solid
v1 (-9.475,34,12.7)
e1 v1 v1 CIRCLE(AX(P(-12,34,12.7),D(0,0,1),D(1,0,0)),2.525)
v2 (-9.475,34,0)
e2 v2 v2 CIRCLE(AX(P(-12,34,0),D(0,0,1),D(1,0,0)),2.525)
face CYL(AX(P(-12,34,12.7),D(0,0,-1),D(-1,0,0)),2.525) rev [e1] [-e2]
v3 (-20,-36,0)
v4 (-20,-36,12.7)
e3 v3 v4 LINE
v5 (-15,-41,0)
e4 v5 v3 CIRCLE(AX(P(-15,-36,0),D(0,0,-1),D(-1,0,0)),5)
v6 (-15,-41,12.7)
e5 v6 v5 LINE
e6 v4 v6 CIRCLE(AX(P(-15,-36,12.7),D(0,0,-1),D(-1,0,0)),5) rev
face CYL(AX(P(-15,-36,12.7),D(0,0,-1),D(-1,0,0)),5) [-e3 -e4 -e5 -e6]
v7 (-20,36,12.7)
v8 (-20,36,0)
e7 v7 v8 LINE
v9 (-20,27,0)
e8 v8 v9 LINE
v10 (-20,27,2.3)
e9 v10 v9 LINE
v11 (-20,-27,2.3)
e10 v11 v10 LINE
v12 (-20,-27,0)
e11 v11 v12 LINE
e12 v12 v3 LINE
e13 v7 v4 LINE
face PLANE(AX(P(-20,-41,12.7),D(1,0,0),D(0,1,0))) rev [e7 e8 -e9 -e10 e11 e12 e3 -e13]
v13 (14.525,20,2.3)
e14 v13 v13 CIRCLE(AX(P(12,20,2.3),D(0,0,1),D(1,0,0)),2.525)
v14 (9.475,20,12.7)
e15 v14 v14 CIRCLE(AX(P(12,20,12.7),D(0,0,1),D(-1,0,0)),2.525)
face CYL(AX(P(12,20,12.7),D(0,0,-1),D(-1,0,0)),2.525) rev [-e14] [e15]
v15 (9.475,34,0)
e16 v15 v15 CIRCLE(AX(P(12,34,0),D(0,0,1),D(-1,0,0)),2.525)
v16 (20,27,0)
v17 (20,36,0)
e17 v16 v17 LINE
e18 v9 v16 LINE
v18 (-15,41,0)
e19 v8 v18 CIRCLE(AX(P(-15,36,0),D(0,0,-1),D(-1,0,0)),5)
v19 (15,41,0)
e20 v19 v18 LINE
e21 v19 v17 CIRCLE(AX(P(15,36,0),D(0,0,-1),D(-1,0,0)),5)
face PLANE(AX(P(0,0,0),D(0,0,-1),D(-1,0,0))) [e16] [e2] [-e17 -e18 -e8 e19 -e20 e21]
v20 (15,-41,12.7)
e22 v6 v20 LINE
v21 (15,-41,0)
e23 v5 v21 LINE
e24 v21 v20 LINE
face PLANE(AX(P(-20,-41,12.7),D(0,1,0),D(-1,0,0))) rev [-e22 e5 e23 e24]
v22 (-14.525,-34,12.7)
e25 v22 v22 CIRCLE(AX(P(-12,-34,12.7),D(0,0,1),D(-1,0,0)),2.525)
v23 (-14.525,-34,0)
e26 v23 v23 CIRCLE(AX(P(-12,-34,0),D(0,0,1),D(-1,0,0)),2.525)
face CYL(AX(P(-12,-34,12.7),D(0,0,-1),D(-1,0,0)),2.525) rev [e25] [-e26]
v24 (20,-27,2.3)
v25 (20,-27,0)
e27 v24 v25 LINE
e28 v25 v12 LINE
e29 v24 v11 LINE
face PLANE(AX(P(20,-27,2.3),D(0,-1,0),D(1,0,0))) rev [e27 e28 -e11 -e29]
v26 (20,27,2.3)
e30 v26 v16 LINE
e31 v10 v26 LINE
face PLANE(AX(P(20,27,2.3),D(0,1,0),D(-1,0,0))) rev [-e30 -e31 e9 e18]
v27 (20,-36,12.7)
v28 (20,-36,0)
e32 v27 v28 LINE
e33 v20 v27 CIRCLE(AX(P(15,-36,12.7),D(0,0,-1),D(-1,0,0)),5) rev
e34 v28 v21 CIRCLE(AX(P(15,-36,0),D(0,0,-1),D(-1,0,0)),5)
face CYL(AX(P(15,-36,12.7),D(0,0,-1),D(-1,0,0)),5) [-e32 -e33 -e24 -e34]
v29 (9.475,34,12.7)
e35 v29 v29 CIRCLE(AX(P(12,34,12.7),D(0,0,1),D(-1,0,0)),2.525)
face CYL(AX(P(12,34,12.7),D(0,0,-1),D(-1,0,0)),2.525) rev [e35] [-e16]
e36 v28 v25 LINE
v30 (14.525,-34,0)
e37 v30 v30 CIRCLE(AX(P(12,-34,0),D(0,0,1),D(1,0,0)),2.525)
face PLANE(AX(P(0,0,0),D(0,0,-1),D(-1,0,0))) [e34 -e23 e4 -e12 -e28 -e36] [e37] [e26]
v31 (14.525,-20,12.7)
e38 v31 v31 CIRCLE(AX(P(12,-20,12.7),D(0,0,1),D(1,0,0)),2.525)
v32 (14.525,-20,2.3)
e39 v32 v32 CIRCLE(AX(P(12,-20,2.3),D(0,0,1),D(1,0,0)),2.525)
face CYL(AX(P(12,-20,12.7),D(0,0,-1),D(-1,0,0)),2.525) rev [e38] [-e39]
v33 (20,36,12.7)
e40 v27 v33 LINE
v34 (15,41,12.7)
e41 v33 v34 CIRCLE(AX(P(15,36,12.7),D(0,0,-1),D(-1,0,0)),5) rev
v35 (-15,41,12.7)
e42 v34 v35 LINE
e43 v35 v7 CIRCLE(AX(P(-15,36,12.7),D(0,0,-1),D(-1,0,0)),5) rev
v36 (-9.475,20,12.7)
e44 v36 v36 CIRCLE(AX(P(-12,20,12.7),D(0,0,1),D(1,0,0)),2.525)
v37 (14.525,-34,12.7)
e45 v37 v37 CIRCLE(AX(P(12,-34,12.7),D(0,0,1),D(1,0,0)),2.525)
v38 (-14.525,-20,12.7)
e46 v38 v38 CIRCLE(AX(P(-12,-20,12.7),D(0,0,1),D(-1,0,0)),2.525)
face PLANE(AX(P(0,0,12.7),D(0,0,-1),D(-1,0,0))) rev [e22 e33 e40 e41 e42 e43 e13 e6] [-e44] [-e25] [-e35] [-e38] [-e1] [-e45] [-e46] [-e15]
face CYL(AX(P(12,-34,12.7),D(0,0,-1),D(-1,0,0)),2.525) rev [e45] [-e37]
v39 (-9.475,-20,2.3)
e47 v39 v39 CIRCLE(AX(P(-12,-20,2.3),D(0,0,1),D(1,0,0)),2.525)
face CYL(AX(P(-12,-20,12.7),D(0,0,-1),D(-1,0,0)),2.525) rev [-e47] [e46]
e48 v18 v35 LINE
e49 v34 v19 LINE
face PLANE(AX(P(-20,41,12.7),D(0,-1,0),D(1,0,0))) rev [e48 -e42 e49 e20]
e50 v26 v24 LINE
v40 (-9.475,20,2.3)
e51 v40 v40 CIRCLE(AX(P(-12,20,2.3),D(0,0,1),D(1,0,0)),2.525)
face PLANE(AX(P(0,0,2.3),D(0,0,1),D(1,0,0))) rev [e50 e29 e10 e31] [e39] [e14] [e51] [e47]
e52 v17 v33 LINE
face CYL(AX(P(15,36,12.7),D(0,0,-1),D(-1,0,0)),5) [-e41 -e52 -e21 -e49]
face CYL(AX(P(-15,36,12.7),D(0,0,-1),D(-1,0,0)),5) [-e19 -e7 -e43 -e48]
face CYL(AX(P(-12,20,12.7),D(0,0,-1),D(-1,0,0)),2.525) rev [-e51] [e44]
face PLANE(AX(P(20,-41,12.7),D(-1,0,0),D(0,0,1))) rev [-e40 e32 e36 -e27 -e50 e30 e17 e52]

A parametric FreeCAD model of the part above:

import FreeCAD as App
import Part
import Sketcher
from FreeCAD import Vector


def edges_at(feature, points):
    """Names of the edges that pass closest to the given points."""
    edges = feature.Shape.Edges
    near = lambda p: min(range(len(edges)), key=lambda i: edges[i].distToShape(Part.Vertex(*p))[0])
    return sorted({f"Edge{near(p) + 1}" for p in points})


def add_polygon(sketch, points):
    """Adds a closed chain of lines whose ends are joined by coincident constraints."""
    first, n = sketch.GeometryCount, len(points)
    for a, b in zip(points, points[1:] + points[:1]):
        sketch.addGeometry(Part.LineSegment(App.Vector(*a, 0), App.Vector(*b, 0)), False)
    for i in range(n):
        sketch.addConstraint(Sketcher.Constraint("Coincident", first + i, 2, first + (i + 1) % n, 1))

doc = App.newDocument("Part")
body = doc.addObject("PartDesign::Body", "Body")

# Sketch on XY plane
sketch1 = body.newObject("Sketcher::SketchObject", "Sketch")
sketch1.AttachmentSupport = (doc.getObject("XY_Plane"), [""])
sketch1.MapMode = "FlatFace"
add_polygon(sketch1, [(-20, 41), (-20, -41), (20, -41), (20, 41)])  # lines 0-3
sketch1.addGeometry(Part.Circle(Vector(-12, -34, 0), Vector(0, 0, 1), 2.525), False)  # 4
sketch1.addGeometry(Part.Circle(Vector(-12, -20, 0), Vector(0, 0, 1), 2.525), False)  # 5
sketch1.addGeometry(Part.Circle(Vector(12, -34, 0), Vector(0, 0, 1), 2.525), False)  # 6
sketch1.addGeometry(Part.Circle(Vector(12, -20, 0), Vector(0, 0, 1), 2.525), False)  # 7
sketch1.addGeometry(Part.Circle(Vector(-12, 20, 0), Vector(0, 0, 1), 2.525), False)  # 8
sketch1.addGeometry(Part.Circle(Vector(-12, 34, 0), Vector(0, 0, 1), 2.525), False)  # 9
sketch1.addGeometry(Part.Circle(Vector(12, 20, 0), Vector(0, 0, 1), 2.525), False)  # 10
sketch1.addGeometry(Part.Circle(Vector(12, 34, 0), Vector(0, 0, 1), 2.525), False)  # 11
sketch1.addConstraint([
    Sketcher.Constraint("Vertical", 0),
    Sketcher.Constraint("Horizontal", 1),
    Sketcher.Constraint("Vertical", 2),
    Sketcher.Constraint("Horizontal", 3),
    Sketcher.Constraint("Equal", 4, 5),
    Sketcher.Constraint("Equal", 5, 6),
    Sketcher.Constraint("Equal", 6, 7),
    Sketcher.Constraint("Equal", 7, 8),
    Sketcher.Constraint("Equal", 8, 9),
    Sketcher.Constraint("Equal", 9, 10),
    Sketcher.Constraint("Equal", 10, 11),
    Sketcher.Constraint("Symmetric", 7, 3, 8, 3, -1, 1),
    Sketcher.Constraint("Symmetric", 6, 3, 9, 3, -1, 1),
    Sketcher.Constraint("Symmetric", 5, 3, 10, 3, -1, 1),
    Sketcher.Constraint("Symmetric", 4, 3, 11, 3, -1, 1),
    Sketcher.Constraint("Symmetric", 0, 2, 2, 2, -1, 1),
    Sketcher.Constraint("Symmetric", 4, 3, 6, 3, -2),
    Sketcher.Constraint("Symmetric", 5, 3, 7, 3, -2),
    Sketcher.Constraint("Vertical", 4, 3, 5, 3),
    Sketcher.Constraint("Diameter", 4, 5.05),
    Sketcher.Constraint("DistanceX", 1, 1, 1, 2, 40.0),
    Sketcher.Constraint("DistanceY", 0, 2, 0, 1, 82.0),
    Sketcher.Constraint("DistanceX", 4, 3, -1, 1, 12.0),
    Sketcher.Constraint("DistanceY", 4, 3, -1, 1, 34.0),
    Sketcher.Constraint("DistanceY", 5, 3, -1, 1, 20.0),
])
pad1 = body.newObject("PartDesign::Pad", "Pad")
pad1.Profile = sketch1
pad1.Length = 12.7

# Sketch on XY plane
sketch2 = body.newObject("Sketcher::SketchObject", "Sketch001")
sketch2.AttachmentSupport = (doc.getObject("XY_Plane"), [""])
sketch2.MapMode = "FlatFace"
add_polygon(sketch2, [(20, 27), (20, -27), (-20, -27), (-20, 27)])  # lines 0-3
sketch2.addConstraint([
    Sketcher.Constraint("Vertical", 0),
    Sketcher.Constraint("Horizontal", 1),
    Sketcher.Constraint("Vertical", 2),
    Sketcher.Constraint("Horizontal", 3),
    Sketcher.Constraint("Symmetric", 0, 2, 2, 2, -1, 1),
    Sketcher.Constraint("DistanceX", 1, 2, 1, 1, 40.0),
    Sketcher.Constraint("DistanceY", 0, 2, 0, 1, 54.0),
])
pocket1 = body.newObject("PartDesign::Pocket", "Pocket")
pocket1.Profile = sketch2
pocket1.Length = 2.3
pocket1.Reversed = True
doc.recompute()

fillet = body.newObject("PartDesign::Fillet", "Fillet")
fillet.Base = (pocket1, edges_at(pocket1, [
    (20, -41, 6.35),
    (-20, -41, 6.35),
    (-20, 41, 6.35),
    (20, 41, 6.35),
]))
fillet.Radius = 5

doc.recompute()
